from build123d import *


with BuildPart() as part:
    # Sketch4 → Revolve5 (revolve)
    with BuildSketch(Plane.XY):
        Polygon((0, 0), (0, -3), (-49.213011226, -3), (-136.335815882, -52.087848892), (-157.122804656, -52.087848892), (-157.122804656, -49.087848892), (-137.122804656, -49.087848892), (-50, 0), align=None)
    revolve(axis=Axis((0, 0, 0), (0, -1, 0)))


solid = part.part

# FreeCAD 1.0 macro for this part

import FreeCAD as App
import Part
import Sketcher

doc = App.newDocument("Part")
params = doc.addObject("Spreadsheet::Sheet", "Params")
for row, (alias, value) in enumerate([
    ("sketch1_width", "50 mm"),
    ("sketch1_width2", "20 mm"),
    ("sketch1_height", "3 mm"),
    ("sketch1_length", "100 mm"),
    ("revolution_angle", "360 deg"),
], start=1):
    params.set(f"A{row}", alias)
    params.set(f"B{row}", "=" + value)
    params.setAlias(f"B{row}", alias)

body = doc.addObject("PartDesign::Body", "Body")

# Sketch on XY plane
sketch1 = body.newObject("Sketcher::SketchObject", "Sketch")
sketch1.AttachmentSupport = (doc.getObject("XY_Plane"), [""])
sketch1.MapMode = "FlatFace"
sketch1.addGeometry([
    Part.LineSegment(App.Vector(0, -3, 0), App.Vector(0, 0, 0)),  # 0
    Part.LineSegment(App.Vector(0, 0, 0), App.Vector(-50, 0, 0)),  # 1
    Part.LineSegment(App.Vector(-50, 0, 0), App.Vector(-137.122805, -49.087849, 0)),  # 2
    Part.LineSegment(App.Vector(-137.122805, -49.087849, 0), App.Vector(-157.122805, -49.087849, 0)),  # 3
    Part.LineSegment(App.Vector(-157.122805, -49.087849, 0), App.Vector(-157.122805, -52.087849, 0)),  # 4
    Part.LineSegment(App.Vector(-157.122805, -52.087849, 0), App.Vector(-136.335816, -52.087849, 0)),  # 5
    Part.LineSegment(App.Vector(-136.335816, -52.087849, 0), App.Vector(-49.213011, -3, 0)),  # 6
    Part.LineSegment(App.Vector(-49.213011, -3, 0), App.Vector(0, -3, 0)),  # 7
], False)
sketch1.addConstraint([
    Sketcher.Constraint("Coincident", 0, 2, 1, 1),
    Sketcher.Constraint("Coincident", 1, 2, 2, 1),
    Sketcher.Constraint("Coincident", 2, 2, 3, 1),
    Sketcher.Constraint("Coincident", 3, 2, 4, 1),
    Sketcher.Constraint("Coincident", 4, 2, 5, 1),
    Sketcher.Constraint("Coincident", 5, 2, 6, 1),
    Sketcher.Constraint("Coincident", 6, 2, 7, 1),
    Sketcher.Constraint("Coincident", 7, 2, 0, 1),
    Sketcher.Constraint("Vertical", 0),
    Sketcher.Constraint("Horizontal", 1),
    Sketcher.Constraint("Horizontal", 3),
    Sketcher.Constraint("Vertical", 4),
    Sketcher.Constraint("Horizontal", 5),
    Sketcher.Constraint("Horizontal", 7),
    Sketcher.Constraint("Coincident", 0, 2, -1, 1),
    Sketcher.Constraint("Parallel", 2, 6),
    Sketcher.Constraint("Equal", 0, 4),
    Sketcher.Constraint("DistanceX", 1, 2, 1, 1, 50.0),
    Sketcher.Constraint("DistanceX", 3, 2, 3, 1, 20.0),
    Sketcher.Constraint("DistanceY", 0, 1, 0, 2, 3.0),
    Sketcher.Constraint("Distance", 2, 100.0),
    Sketcher.Constraint("DistanceX", 5, 1, 5, 2, 20.786989),
    Sketcher.Constraint("DistanceY", 2, 2, -1, 1, 49.087849),
])
sketch1.setExpression("Constraints[17]", "Params.sketch1_width")
sketch1.setExpression("Constraints[18]", "Params.sketch1_width2")
sketch1.setExpression("Constraints[19]", "Params.sketch1_height")
sketch1.setExpression("Constraints[20]", "Params.sketch1_length")
revolution = body.newObject("PartDesign::Revolution", "Revolution")
revolution.Profile = sketch1
revolution.ReferenceAxis = (sketch1, ["V_Axis"])
revolution.setExpression("Angle", "Params.revolution_angle")

doc.recompute()
